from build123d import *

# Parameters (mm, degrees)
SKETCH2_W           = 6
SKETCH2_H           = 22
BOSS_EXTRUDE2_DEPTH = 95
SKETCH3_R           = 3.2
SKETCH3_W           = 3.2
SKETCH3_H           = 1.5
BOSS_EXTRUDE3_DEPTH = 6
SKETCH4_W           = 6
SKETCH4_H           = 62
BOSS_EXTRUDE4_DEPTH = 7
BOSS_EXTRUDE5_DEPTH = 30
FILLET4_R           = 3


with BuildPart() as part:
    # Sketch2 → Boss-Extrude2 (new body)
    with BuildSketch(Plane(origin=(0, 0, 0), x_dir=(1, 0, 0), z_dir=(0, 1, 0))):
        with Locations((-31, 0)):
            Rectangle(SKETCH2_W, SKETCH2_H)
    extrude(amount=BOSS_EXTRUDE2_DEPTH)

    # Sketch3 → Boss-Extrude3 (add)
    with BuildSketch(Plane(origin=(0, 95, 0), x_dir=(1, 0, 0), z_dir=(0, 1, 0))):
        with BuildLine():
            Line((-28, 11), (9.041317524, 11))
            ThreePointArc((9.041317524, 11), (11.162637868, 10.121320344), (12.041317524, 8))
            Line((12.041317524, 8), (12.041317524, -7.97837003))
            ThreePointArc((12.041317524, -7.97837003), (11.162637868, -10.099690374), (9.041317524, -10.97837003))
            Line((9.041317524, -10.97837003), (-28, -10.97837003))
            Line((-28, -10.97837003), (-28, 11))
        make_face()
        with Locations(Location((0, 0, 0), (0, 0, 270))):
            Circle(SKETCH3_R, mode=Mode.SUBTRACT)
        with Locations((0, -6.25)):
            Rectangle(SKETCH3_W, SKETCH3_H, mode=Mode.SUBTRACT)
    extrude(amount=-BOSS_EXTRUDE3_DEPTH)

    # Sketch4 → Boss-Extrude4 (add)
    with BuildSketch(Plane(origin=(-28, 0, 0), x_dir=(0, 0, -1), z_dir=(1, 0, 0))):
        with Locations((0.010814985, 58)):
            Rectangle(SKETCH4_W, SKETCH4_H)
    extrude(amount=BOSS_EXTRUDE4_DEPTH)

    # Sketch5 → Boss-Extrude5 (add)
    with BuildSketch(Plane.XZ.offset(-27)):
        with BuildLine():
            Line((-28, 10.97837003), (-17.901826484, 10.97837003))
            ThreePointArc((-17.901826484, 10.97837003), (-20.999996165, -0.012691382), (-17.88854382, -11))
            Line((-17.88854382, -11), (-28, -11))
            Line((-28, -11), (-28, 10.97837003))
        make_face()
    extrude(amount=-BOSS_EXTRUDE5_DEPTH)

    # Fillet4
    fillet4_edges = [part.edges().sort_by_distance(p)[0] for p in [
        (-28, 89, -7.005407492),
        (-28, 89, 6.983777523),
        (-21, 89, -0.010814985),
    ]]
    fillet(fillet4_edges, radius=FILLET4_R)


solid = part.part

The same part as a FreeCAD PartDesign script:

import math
import FreeCAD as App
import Part
import Sketcher

V = App.Vector


def edges_at(feature, points):
    """Names of the edges that pass closest to the given points."""
    edges = feature.Shape.Edges
    near = lambda p: min(range(len(edges)), key=lambda i: edges[i].distToShape(Part.Vertex(*p))[0])
    return sorted({f"Edge{near(p) + 1}" for p in points})


def add_polygon(sketch, points):
    """Adds a closed chain of lines whose ends are joined by coincident constraints."""
    first, n = sketch.GeometryCount, len(points)
    for a, b in zip(points, points[1:] + points[:1]):
        sketch.addGeometry(Part.LineSegment(App.Vector(*a, 0), App.Vector(*b, 0)), False)
    for i in range(n):
        sketch.addConstraint(Sketcher.Constraint("Coincident", first + i, 2, first + (i + 1) % n, 1))

doc = App.newDocument("Part")
body = doc.addObject("PartDesign::Body", "Body")

sketch1 = body.newObject("Sketcher::SketchObject", "Sketch")
sketch1.AttachmentSupport = (doc.getObject("XZ_Plane"), [""])
sketch1.MapMode = "FlatFace"
add_polygon(sketch1, [(-34, -11), (-34, 11), (-28, 11), (-28, -11)])
sketch1.addConstraint([
    Sketcher.Constraint("Vertical", 0),
    Sketcher.Constraint("Horizontal", 1),
    Sketcher.Constraint("Vertical", 2),
    Sketcher.Constraint("Horizontal", 3),
    Sketcher.Constraint("DistanceX", 1, 1, 1, 2, 6.0),
    Sketcher.Constraint("DistanceY", 0, 1, 0, 2, 22.0),
    Sketcher.Constraint("DistanceX", 0, 2, -1, 1, 34.0),
    Sketcher.Constraint("DistanceY", -1, 1, 0, 2, 11.0),
])
pad1 = body.newObject("PartDesign::Pad", "Pad")
pad1.Profile = sketch1
pad1.Length = 95
pad1.Reversed = True

sketch2 = body.newObject("Sketcher::SketchObject", "Sketch001")
sketch2.AttachmentSupport = (doc.getObject("XZ_Plane"), [""])
sketch2.MapMode = "FlatFace"
sketch2.AttachmentOffset = App.Placement(V(0, 0, -95), App.Rotation())
sketch2.addGeometry(Part.LineSegment(V(9.041318, -11, 0), V(-28, -11, 0)), False)
sketch2.addGeometry(Part.LineSegment(V(-28, -11, 0), V(-28, 10.97837, 0)), False)
sketch2.addGeometry(Part.LineSegment(V(-28, 10.97837, 0), V(9.041318, 10.97837, 0)), False)
sketch2.addGeometry(Part.ArcOfCircle(Part.Circle(V(9.041318, 7.97837, 0), V(0, 0, 1), 3), math.radians(0), math.radians(90)), False)
sketch2.addGeometry(Part.LineSegment(V(12.041318, 7.97837, 0), V(12.041318, -8, 0)), False)
sketch2.addGeometry(Part.ArcOfCircle(Part.Circle(V(9.041318, -8, 0), V(0, 0, 1), 3), math.radians(-90), math.radians(0)), False)
add_polygon(sketch2, [(-1.6, 7), (-1.6, 5.5), (1.6, 5.5), (1.6, 7)])
sketch2.addGeometry(Part.Circle(V(0, 0, 0), V(0, 0, 1), 3.2), False)
sketch2.addConstraint([
    Sketcher.Constraint("Coincident", 0, 2, 1, 1),
    Sketcher.Constraint("Coincident", 1, 2, 2, 1),
    Sketcher.Constraint("Tangent", 2, 2, 3, 2),
    Sketcher.Constraint("Tangent", 3, 1, 4, 1),
    Sketcher.Constraint("Tangent", 4, 2, 5, 2),
    Sketcher.Constraint("Tangent", 5, 1, 0, 1),
    Sketcher.Constraint("Horizontal", 0),
    Sketcher.Constraint("Vertical", 1),
    Sketcher.Constraint("Horizontal", 2),
    Sketcher.Constraint("Vertical", 4),
    Sketcher.Constraint("Vertical", 6),
    Sketcher.Constraint("Horizontal", 7),
    Sketcher.Constraint("Vertical", 8),
    Sketcher.Constraint("Horizontal", 9),
    Sketcher.Constraint("Coincident", 10, 3, -1, 1),
    Sketcher.Constraint("Equal", 3, 5),
    Sketcher.Constraint("Radius", 3, 3.0),
    Sketcher.Constraint("Diameter", 10, 6.4),
    Sketcher.Constraint("DistanceX", 7, 1, 7, 2, 3.2),
    Sketcher.Constraint("DistanceY", 6, 2, 6, 1, 1.5),
    Sketcher.Constraint("DistanceY", 5, 3, -1, 1, 8.0),
    Sketcher.Constraint("DistanceX", 0, 2, -1, 1, 28.0),
    Sketcher.Constraint("DistanceY", -1, 1, 8, 2, 7.0),
    Sketcher.Constraint("DistanceX", 6, 2, -1, 1, 1.6),
    Sketcher.Constraint("DistanceY", 1, 1, 1, 2, 21.97837),
    Sketcher.Constraint("DistanceX", 0, 2, 0, 1, 37.041318),
])
pad2 = body.newObject("PartDesign::Pad", "Pad001")
pad2.Profile = sketch2
pad2.Length = 6

sketch3 = body.newObject("Sketcher::SketchObject", "Sketch002")
sketch3.AttachmentSupport = (doc.getObject("YZ_Plane"), [""])
sketch3.MapMode = "FlatFace"
sketch3.AttachmentOffset = App.Placement(V(0, 0, -28), App.Rotation())
add_polygon(sketch3, [(89, 2.989185), (27, 2.989185), (27, -3.010815), (89, -3.010815)])
sketch3.addConstraint([
    Sketcher.Constraint("Horizontal", 0),
    Sketcher.Constraint("Vertical", 1),
    Sketcher.Constraint("Horizontal", 2),
    Sketcher.Constraint("Vertical", 3),
    Sketcher.Constraint("DistanceX", 0, 2, 0, 1, 62.0),
    Sketcher.Constraint("DistanceY", 1, 2, 1, 1, 6.0),
    Sketcher.Constraint("DistanceX", -1, 1, 0, 2, 27.0),
    Sketcher.Constraint("DistanceY", -1, 1, 0, 2, 2.989185),
])
pad3 = body.newObject("PartDesign::Pad", "Pad002")
pad3.Profile = sketch3
pad3.Length = 7

sketch4 = body.newObject("Sketcher::SketchObject", "Sketch003")
sketch4.AttachmentSupport = (doc.getObject("XZ_Plane"), [""])
sketch4.MapMode = "FlatFace"
sketch4.AttachmentOffset = App.Placement(V(0, 0, -27), App.Rotation())
sketch4.addGeometry([
    Part.LineSegment(V(-17.901826, 10.97837, 0), V(-28, 10.97837, 0)),
    Part.LineSegment(V(-28, 10.97837, 0), V(-28, -11, 0)),
    Part.LineSegment(V(-28, -11, 0), V(-17.888544, -11, 0)),
    Part.ArcOfCircle(Part.Circle(V(0, 0, 0), V(0, 0, 1), 21), math.radians(148.481118), math.radians(211.588136)),
], False)
sketch4.addConstraint([
    Sketcher.Constraint("Coincident", 0, 2, 1, 1),
    Sketcher.Constraint("Coincident", 1, 2, 2, 1),
    Sketcher.Constraint("Coincident", 2, 2, 3, 2),
    Sketcher.Constraint("Coincident", 3, 1, 0, 1),
    Sketcher.Constraint("Horizontal", 0),
    Sketcher.Constraint("Vertical", 1),
    Sketcher.Constraint("Horizontal", 2),
    Sketcher.Constraint("Coincident", 3, 3, -1, 1),
    Sketcher.Constraint("Radius", 3, 21.0),
    Sketcher.Constraint("DistanceX", 0, 2, -1, 1, 28.0),
    Sketcher.Constraint("DistanceY", 1, 2, -1, 1, 11.0),
    Sketcher.Constraint("DistanceY", 1, 2, 1, 1, 21.97837),
])
pad4 = body.newObject("PartDesign::Pad", "Pad003")
pad4.Profile = sketch4
pad4.Length = 30
pad4.Reversed = True
doc.recompute()

fillet = body.newObject("PartDesign::Fillet", "Fillet")
fillet.Base = (pad4, edges_at(pad4, [(-28, 89, -7.005), (-28, 89, 6.984), (-21, 89, -0.011)]))
fillet.Radius = 3

doc.recompute()
